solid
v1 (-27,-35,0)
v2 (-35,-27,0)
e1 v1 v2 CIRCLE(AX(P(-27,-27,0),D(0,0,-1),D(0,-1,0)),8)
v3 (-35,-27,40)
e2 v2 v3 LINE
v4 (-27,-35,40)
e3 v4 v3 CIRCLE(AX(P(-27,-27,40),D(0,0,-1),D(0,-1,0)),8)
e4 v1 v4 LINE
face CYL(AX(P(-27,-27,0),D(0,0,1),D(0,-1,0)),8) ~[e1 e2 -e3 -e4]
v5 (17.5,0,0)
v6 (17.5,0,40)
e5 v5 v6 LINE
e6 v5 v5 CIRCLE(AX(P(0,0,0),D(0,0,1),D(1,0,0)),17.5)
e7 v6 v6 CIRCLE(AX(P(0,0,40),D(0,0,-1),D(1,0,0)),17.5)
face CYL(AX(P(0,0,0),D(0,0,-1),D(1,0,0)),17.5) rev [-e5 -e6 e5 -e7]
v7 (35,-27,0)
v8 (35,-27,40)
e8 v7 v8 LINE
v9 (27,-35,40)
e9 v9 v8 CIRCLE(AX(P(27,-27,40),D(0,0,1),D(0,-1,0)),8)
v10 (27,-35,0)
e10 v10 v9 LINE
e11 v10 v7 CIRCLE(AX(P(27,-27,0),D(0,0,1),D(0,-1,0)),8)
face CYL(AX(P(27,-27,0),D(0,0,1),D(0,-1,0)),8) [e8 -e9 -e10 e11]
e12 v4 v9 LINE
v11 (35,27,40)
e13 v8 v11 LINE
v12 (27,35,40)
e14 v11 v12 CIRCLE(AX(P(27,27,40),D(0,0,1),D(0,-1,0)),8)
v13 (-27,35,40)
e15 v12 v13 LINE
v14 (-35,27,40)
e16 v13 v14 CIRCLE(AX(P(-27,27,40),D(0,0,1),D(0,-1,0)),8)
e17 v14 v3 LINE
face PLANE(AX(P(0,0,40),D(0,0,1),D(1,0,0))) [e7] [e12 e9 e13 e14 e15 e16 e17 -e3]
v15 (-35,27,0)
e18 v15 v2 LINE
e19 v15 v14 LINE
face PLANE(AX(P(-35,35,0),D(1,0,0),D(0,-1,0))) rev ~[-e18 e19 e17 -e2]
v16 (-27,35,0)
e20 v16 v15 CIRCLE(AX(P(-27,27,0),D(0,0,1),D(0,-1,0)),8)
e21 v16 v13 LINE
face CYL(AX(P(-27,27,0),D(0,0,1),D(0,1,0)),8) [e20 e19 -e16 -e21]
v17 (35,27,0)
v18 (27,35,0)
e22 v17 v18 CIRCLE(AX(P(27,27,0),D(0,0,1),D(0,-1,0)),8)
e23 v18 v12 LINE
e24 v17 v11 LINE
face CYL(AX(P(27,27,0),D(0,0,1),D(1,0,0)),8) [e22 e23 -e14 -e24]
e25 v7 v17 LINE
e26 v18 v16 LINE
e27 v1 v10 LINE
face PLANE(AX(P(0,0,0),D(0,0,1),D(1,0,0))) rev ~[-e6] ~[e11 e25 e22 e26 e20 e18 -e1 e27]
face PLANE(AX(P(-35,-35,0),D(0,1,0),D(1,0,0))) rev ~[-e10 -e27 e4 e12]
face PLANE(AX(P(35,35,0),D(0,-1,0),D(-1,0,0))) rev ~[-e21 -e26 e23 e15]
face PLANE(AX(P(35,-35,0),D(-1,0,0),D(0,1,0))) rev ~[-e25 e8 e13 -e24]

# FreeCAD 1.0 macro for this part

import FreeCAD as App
import Part
import Sketcher

V = App.Vector
Q = App.Units.Quantity


def edges_at(feature, points):
    """Names of the edges that pass closest to the given points."""
    edges = feature.Shape.Edges
    near = lambda p: min(range(len(edges)), key=lambda i: edges[i].distToShape(Part.Vertex(*p))[0])
    return sorted({f"Edge{near(p) + 1}" for p in points})


def add_polygon(sketch, points):
    """Adds a closed chain of lines whose ends are joined by coincident constraints."""
    first, n = sketch.GeometryCount, len(points)
    for a, b in zip(points, points[1:] + points[:1]):
        sketch.addGeometry(Part.LineSegment(App.Vector(*a, 0), App.Vector(*b, 0)), False)
    for i in range(n):
        sketch.addConstraint(Sketcher.Constraint("Coincident", first + i, 2, first + (i + 1) % n, 1))

doc = App.newDocument("Part")
body = doc.addObject("PartDesign::Body", "Body")

# Sketch on XY plane
sketch1 = body.newObject("Sketcher::SketchObject", "Sketch")
sketch1.AttachmentSupport = (doc.getObject("XY_Plane"), [""])
sketch1.MapMode = "FlatFace"
add_polygon(sketch1, [(-35, 35), (-35, -35), (35, -35), (35, 35)])  # lines 0-3
sketch1.addConstraint([
    Sketcher.Constraint("Vertical", 0),
    Sketcher.Constraint("Horizontal", 1),
    Sketcher.Constraint("Vertical", 2),
    Sketcher.Constraint("Horizontal", 3),
    Sketcher.Constraint("Symmetric", 0, 2, 2, 2, -1, 1),
    Sketcher.Constraint("Equal", 3, 0),
    Sketcher.Constraint("DistanceX", 1, 1, 1, 2, Q("70 mm")),
])
pad1 = body.newObject("PartDesign::Pad", "Pad")
pad1.Profile = sketch1
pad1.Length = 40
doc.recompute()

fillet = body.newObject("PartDesign::Fillet", "Fillet")
fillet.Base = (pad1, edges_at(pad1, [
    (35, -35, 20),
    (35, 35, 20),
    (-35, -35, 20),
    (-35, 35, 20),
]))
fillet.Radius = 8

# Sketch on XY plane
sketch2 = body.newObject("Sketcher::SketchObject", "Sketch001")
sketch2.AttachmentSupport = (doc.getObject("XY_Plane"), [""])
sketch2.MapMode = "FlatFace"
sketch2.addGeometry(Part.Circle(V(0, 0, 0), V(0, 0, 1), 18), False)
sketch2.addConstraint([
    Sketcher.Constraint("Coincident", 0, 3, -1, 1),
    Sketcher.Constraint("Diameter", 0, Q("35 mm")),
])
pocket1 = body.newObject("PartDesign::Pocket", "Pocket")
pocket1.Profile = sketch2
pocket1.Length = 118.7913
pocket1.Reversed = True

doc.recompute()
